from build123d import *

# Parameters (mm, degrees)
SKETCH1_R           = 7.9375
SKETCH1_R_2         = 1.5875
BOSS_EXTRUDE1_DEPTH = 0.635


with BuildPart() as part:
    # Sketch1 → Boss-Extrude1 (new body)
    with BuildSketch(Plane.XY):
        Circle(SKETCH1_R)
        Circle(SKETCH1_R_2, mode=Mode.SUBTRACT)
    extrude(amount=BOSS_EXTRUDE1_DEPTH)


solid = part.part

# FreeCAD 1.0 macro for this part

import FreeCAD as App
import Part
import Sketcher

V = App.Vector
Q = App.Units.Quantity

doc = App.newDocument("Part")
body = doc.addObject("PartDesign::Body", "Body")

# Sketch on XY plane
sketch1 = body.newObject("Sketcher::SketchObject", "Sketch")
sketch1.AttachmentSupport = (doc.getObject("XY_Plane"), [""])
sketch1.MapMode = "FlatFace"
sketch1.addGeometry([
    Part.Circle(V(0, 0, 0), V(0, 0, 1), 7.9),
    Part.Circle(V(0, 0, 0), V(0, 0, 1), 1.6),
], False)
sketch1.addConstraint([
    Sketcher.Constraint("Coincident", 0, 3, -1, 1),
    Sketcher.Constraint("Coincident", 1, 3, -1, 1),
    Sketcher.Constraint("Diameter", 0, Q("0.625 in")),
    Sketcher.Constraint("Diameter", 1, Q("0.125 in")),
])
pad1 = body.newObject("PartDesign::Pad", "Pad")
pad1.Profile = sketch1
pad1.Length = Q("0.025 in")

doc.recompute()
